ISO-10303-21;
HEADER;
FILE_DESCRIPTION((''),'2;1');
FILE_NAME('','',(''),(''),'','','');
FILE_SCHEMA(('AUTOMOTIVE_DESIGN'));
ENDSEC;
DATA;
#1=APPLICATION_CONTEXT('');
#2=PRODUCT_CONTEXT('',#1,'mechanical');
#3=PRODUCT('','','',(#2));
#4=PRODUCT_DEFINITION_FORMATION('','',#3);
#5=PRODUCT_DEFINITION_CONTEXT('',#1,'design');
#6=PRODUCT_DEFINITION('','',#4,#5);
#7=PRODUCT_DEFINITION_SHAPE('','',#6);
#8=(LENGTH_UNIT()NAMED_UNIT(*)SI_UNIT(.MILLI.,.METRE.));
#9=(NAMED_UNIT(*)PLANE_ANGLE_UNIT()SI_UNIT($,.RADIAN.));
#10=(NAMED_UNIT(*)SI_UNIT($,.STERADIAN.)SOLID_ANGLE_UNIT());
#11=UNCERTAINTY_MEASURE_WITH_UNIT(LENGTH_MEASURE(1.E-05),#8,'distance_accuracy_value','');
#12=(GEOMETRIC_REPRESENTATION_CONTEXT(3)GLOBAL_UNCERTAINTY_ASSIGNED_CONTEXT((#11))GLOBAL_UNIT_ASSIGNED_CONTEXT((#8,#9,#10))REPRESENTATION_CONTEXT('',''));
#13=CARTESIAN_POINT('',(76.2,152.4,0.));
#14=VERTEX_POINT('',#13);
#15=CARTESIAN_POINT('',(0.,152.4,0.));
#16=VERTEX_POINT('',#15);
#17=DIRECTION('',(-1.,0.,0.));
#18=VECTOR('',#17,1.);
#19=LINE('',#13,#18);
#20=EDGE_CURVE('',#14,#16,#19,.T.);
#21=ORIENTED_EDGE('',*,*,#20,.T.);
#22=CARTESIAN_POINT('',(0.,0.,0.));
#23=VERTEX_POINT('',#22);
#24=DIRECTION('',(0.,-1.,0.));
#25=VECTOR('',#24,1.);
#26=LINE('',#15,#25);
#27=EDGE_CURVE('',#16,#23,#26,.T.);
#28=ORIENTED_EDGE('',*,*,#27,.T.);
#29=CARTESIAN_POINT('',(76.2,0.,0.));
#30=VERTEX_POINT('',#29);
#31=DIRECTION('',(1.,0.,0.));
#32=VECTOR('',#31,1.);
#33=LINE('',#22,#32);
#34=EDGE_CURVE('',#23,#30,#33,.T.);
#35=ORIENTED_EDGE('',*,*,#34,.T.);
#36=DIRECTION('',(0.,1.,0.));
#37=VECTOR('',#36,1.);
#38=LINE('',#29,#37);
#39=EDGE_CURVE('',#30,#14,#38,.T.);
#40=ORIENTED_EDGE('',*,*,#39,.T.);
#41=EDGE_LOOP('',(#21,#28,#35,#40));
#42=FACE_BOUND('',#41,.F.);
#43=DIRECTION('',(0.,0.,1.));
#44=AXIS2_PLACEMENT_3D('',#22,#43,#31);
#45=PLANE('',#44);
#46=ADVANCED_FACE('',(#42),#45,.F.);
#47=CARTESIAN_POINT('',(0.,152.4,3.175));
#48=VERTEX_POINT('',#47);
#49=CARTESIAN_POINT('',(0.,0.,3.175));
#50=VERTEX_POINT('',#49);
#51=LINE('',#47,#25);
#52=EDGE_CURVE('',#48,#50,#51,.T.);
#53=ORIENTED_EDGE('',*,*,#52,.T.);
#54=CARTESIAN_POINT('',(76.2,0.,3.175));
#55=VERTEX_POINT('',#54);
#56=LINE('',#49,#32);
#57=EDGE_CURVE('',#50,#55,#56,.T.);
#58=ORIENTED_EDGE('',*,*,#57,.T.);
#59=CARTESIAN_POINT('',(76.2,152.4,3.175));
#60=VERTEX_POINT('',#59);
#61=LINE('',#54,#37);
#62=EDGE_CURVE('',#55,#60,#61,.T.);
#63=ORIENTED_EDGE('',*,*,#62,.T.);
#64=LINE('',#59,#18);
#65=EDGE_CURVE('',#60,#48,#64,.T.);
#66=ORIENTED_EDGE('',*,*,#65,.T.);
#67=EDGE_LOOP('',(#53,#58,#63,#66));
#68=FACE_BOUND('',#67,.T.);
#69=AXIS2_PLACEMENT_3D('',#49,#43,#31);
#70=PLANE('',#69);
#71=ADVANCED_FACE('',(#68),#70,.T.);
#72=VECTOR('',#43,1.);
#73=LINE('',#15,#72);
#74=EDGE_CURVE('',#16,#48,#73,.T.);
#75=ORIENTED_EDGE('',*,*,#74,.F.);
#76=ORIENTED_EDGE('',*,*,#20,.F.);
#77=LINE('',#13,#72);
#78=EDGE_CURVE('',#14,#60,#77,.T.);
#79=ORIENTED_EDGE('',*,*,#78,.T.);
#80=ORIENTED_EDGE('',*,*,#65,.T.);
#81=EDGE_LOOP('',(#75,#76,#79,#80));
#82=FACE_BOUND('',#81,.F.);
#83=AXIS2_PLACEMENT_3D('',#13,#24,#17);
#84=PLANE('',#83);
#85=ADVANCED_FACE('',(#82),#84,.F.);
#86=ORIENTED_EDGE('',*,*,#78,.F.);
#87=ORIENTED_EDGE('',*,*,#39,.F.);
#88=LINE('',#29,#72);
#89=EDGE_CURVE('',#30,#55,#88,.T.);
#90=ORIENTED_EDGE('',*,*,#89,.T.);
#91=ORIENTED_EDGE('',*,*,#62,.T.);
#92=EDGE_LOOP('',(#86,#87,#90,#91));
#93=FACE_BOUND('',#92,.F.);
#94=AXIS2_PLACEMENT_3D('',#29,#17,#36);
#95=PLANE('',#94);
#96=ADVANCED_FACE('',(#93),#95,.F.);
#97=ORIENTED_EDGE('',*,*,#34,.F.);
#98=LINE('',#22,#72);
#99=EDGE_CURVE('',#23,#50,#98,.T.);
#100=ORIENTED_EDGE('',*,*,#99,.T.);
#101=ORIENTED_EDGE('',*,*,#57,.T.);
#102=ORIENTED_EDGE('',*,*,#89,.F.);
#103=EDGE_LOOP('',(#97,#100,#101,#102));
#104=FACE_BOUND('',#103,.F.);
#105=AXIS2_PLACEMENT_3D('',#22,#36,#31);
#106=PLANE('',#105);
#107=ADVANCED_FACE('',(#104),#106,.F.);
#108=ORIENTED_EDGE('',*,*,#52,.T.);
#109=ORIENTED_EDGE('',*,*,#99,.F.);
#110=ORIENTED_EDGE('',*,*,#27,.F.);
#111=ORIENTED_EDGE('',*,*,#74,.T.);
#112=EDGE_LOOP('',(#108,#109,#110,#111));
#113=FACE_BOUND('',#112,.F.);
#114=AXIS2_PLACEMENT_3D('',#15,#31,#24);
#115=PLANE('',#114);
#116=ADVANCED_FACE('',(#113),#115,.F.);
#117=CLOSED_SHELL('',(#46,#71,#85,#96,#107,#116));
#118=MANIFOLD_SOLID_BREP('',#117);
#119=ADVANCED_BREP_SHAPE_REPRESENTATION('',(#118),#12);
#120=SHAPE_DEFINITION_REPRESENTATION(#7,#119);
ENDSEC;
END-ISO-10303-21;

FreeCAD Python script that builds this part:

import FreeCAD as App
import Part
import Sketcher
Q = App.Units.Quantity


def add_polygon(sketch, points):
    """Adds a closed chain of lines whose ends are joined by coincident constraints."""
    first, n = sketch.GeometryCount, len(points)
    for a, b in zip(points, points[1:] + points[:1]):
        sketch.addGeometry(Part.LineSegment(App.Vector(*a, 0), App.Vector(*b, 0)), False)
    for i in range(n):
        sketch.addConstraint(Sketcher.Constraint("Coincident", first + i, 2, first + (i + 1) % n, 1))

doc = App.newDocument("Part")
body = doc.addObject("PartDesign::Body", "Body")

sketch1 = body.newObject("Sketcher::SketchObject", "Sketch")
sketch1.AttachmentSupport = (doc.getObject("XY_Plane"), [""])
sketch1.MapMode = "FlatFace"
add_polygon(sketch1, [(0, 152), (0, 0), (76, 0), (76, 152)])
sketch1.addConstraint([
    Sketcher.Constraint("Vertical", 0),
    Sketcher.Constraint("Horizontal", 1),
    Sketcher.Constraint("Vertical", 2),
    Sketcher.Constraint("Horizontal", 3),
    Sketcher.Constraint("Coincident", 0, 2, -1, 1),
    Sketcher.Constraint("DistanceX", 1, 1, 1, 2, Q("3 in")),
    Sketcher.Constraint("DistanceY", 0, 2, 0, 1, Q("6 in")),
])
pad1 = body.newObject("PartDesign::Pad", "Pad")
pad1.Profile = sketch1
pad1.Length = Q("0.125 in")

doc.recompute()
